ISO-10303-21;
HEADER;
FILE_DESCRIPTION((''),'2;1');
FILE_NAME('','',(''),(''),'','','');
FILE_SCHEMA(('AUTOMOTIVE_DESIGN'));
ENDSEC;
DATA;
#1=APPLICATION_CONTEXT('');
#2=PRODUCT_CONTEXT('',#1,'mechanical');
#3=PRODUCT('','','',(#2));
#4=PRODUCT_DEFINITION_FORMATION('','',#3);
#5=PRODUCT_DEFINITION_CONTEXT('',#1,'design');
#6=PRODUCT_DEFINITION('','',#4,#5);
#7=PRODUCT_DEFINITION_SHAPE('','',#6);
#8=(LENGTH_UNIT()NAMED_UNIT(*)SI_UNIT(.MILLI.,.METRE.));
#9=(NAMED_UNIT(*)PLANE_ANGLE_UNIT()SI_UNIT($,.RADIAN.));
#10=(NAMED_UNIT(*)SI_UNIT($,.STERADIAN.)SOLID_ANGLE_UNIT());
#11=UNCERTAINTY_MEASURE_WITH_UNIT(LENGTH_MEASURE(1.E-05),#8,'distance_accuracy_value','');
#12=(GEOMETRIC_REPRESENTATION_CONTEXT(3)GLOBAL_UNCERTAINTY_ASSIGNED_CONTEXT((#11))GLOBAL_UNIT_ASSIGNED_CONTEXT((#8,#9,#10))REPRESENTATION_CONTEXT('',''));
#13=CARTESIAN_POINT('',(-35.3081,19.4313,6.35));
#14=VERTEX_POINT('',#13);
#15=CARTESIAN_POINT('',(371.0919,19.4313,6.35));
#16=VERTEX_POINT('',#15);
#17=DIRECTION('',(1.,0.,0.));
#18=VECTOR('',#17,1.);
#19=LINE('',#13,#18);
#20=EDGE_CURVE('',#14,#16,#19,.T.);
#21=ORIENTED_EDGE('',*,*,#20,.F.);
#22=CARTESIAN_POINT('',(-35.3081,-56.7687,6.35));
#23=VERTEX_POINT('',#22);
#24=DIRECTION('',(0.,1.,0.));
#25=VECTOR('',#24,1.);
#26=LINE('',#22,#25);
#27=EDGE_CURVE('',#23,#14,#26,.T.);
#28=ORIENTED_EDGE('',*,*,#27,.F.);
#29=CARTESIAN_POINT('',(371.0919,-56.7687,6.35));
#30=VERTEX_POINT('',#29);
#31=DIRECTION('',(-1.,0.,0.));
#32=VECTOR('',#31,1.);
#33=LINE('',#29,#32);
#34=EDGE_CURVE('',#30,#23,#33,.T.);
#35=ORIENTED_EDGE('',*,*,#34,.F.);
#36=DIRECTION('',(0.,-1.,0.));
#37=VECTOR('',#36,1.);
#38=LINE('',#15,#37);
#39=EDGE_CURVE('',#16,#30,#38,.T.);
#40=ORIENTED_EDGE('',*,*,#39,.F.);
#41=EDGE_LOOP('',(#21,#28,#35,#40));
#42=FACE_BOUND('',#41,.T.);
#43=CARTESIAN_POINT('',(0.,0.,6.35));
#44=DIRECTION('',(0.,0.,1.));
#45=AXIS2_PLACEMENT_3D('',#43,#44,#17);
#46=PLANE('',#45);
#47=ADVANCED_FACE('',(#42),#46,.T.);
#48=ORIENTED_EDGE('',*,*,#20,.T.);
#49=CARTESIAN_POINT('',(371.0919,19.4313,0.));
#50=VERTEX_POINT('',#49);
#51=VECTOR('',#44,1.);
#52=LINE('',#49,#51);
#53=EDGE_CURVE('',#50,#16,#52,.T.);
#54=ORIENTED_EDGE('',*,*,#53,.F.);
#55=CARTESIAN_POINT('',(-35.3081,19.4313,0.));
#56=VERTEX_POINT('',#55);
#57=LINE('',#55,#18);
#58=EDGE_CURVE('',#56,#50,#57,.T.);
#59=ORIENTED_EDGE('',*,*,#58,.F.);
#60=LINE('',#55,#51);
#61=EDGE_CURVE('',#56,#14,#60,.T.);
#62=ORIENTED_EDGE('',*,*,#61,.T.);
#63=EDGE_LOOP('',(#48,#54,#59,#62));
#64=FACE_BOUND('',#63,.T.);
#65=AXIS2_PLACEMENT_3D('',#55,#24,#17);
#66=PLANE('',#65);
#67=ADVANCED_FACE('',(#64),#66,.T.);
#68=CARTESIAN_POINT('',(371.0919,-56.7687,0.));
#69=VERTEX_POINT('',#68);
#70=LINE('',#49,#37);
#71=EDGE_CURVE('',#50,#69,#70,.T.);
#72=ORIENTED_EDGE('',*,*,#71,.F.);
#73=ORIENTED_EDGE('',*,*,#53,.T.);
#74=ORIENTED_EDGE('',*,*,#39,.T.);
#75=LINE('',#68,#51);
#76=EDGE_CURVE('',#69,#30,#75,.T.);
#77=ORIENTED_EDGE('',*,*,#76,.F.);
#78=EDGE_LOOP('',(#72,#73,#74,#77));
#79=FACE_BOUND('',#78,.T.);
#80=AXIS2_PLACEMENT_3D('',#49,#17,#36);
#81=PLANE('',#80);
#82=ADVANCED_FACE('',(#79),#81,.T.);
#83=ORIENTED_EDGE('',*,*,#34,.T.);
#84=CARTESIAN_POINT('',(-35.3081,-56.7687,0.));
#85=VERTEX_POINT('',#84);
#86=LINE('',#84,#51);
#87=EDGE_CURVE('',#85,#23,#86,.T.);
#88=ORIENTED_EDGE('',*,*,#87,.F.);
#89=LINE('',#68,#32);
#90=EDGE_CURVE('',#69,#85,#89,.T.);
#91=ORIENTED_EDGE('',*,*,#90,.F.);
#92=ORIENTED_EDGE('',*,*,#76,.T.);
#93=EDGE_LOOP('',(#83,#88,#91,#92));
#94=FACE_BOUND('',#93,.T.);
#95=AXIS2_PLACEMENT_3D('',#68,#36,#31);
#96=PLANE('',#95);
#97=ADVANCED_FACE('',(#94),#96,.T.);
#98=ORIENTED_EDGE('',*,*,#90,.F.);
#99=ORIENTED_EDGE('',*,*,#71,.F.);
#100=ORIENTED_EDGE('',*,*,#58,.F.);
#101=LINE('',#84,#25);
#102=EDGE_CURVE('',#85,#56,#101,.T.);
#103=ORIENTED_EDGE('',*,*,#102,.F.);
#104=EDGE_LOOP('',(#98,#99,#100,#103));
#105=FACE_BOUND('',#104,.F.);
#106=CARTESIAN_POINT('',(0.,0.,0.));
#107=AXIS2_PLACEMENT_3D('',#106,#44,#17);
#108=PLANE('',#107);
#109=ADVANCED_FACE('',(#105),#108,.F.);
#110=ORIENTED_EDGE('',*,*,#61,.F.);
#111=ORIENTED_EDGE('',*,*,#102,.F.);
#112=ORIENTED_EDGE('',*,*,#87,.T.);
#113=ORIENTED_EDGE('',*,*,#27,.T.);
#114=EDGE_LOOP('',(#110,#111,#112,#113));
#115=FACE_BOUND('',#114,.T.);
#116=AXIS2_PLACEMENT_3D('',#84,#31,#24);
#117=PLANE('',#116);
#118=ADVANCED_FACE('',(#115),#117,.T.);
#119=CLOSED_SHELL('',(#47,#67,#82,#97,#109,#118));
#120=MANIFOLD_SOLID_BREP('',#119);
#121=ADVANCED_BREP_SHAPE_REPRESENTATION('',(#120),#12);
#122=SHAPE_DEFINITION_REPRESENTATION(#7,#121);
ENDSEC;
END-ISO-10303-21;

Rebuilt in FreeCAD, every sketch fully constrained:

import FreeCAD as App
import Part
import Sketcher
Q = App.Units.Quantity

doc = App.newDocument("Part")
body = doc.addObject("PartDesign::Body", "Body")

sketch1 = body.newObject("Sketcher::SketchObject", "Sketch")
sketch1.AttachmentSupport = (doc.getObject("XY_Plane"), [""])
sketch1.MapMode = "FlatFace"
sketch1.addGeometry(Part.LineSegment(App.Vector(371, 19, 0), App.Vector(-35, 19, 0)), False)
sketch1.addGeometry(Part.LineSegment(App.Vector(-35, 19, 0), App.Vector(-35, -57, 0)), False)
sketch1.addGeometry(Part.LineSegment(App.Vector(-35, -57, 0), App.Vector(371, -57, 0)), False)
sketch1.addGeometry(Part.LineSegment(App.Vector(371, -57, 0), App.Vector(371, 19, 0)), False)
sketch1.addConstraint(Sketcher.Constraint("Coincident", 0, 2, 1, 1))
sketch1.addConstraint(Sketcher.Constraint("Coincident", 1, 2, 2, 1))
sketch1.addConstraint(Sketcher.Constraint("Coincident", 2, 2, 3, 1))
sketch1.addConstraint(Sketcher.Constraint("Coincident", 3, 2, 0, 1))
sketch1.addConstraint(Sketcher.Constraint("Horizontal", 0))
sketch1.addConstraint(Sketcher.Constraint("Vertical", 1))
sketch1.addConstraint(Sketcher.Constraint("Horizontal", 2))
sketch1.addConstraint(Sketcher.Constraint("Vertical", 3))
sketch1.addConstraint(Sketcher.Constraint("DistanceX", 0, 2, 0, 1, Q("16 in")))
sketch1.addConstraint(Sketcher.Constraint("DistanceY", 1, 2, 1, 1, Q("3 in")))
sketch1.addConstraint(Sketcher.Constraint("DistanceY", -1, 1, 0, 2, Q("0.765 in")))
sketch1.addConstraint(Sketcher.Constraint("DistanceX", 0, 2, -1, 1, Q("35.308 mm")))
pad1 = body.newObject("PartDesign::Pad", "Pad")
pad1.Profile = sketch1
pad1.Length = Q("0.25 in")

doc.recompute()
